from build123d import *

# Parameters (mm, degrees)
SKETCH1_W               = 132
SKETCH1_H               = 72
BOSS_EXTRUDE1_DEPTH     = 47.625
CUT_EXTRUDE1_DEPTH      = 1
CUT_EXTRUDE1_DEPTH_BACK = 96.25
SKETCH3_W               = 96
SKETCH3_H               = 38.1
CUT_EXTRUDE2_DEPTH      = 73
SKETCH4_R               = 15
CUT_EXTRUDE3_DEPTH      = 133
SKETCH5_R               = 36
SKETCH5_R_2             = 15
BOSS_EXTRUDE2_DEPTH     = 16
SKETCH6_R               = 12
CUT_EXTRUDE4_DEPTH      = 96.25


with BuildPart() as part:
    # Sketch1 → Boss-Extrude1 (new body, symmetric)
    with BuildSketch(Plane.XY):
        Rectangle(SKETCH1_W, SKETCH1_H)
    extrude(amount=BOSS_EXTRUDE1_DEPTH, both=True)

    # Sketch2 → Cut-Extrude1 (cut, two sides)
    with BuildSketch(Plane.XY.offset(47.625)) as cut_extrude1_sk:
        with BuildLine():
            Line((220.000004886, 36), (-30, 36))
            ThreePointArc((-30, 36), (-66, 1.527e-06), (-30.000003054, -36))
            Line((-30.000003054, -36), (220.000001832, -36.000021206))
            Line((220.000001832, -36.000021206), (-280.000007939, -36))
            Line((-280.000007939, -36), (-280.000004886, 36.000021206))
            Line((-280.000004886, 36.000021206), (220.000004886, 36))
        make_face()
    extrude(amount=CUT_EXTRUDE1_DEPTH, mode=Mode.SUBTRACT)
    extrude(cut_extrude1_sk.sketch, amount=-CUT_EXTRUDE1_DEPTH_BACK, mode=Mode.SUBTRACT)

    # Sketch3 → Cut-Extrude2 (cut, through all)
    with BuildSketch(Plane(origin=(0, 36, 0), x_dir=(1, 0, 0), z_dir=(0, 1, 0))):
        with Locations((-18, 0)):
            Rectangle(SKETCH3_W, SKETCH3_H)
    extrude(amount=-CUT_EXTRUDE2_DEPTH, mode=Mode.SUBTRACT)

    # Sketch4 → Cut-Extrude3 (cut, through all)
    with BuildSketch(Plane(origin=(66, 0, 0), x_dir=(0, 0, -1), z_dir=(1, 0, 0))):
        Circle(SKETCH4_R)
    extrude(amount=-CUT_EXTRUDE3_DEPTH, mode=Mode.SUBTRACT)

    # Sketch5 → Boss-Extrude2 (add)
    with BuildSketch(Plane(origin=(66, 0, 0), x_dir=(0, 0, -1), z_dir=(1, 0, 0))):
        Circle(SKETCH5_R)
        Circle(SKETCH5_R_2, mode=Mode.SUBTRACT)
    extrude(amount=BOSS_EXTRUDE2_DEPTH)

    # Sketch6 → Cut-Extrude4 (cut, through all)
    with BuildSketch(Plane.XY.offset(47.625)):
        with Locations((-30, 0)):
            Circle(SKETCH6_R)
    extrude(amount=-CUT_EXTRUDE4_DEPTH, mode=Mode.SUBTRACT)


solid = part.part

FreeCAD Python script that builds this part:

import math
import FreeCAD as App
import Part
import Sketcher
from FreeCAD import Vector
Q = App.Units.Quantity

doc = App.newDocument("Part")
body = doc.addObject("PartDesign::Body", "Body")

sketch1 = body.newObject("Sketcher::SketchObject", "Sketch")
sketch1.AttachmentSupport = (doc.getObject("XY_Plane"), [""])
sketch1.MapMode = "FlatFace"
sketch1.addGeometry(Part.LineSegment(Vector(-66, 36, 0), Vector(-66, -36, 0)), False)
sketch1.addGeometry(Part.LineSegment(Vector(-66, -36, 0), Vector(66, -36, 0)), False)
sketch1.addGeometry(Part.LineSegment(Vector(66, -36, 0), Vector(66, 36, 0)), False)
sketch1.addGeometry(Part.LineSegment(Vector(66, 36, 0), Vector(-66, 36, 0)), False)
sketch1.addConstraint(Sketcher.Constraint("Coincident", 0, 2, 1, 1))
sketch1.addConstraint(Sketcher.Constraint("Coincident", 1, 2, 2, 1))
sketch1.addConstraint(Sketcher.Constraint("Coincident", 2, 2, 3, 1))
sketch1.addConstraint(Sketcher.Constraint("Coincident", 3, 2, 0, 1))
sketch1.addConstraint(Sketcher.Constraint("Vertical", 0))
sketch1.addConstraint(Sketcher.Constraint("Horizontal", 1))
sketch1.addConstraint(Sketcher.Constraint("Vertical", 2))
sketch1.addConstraint(Sketcher.Constraint("Horizontal", 3))
sketch1.addConstraint(Sketcher.Constraint("Symmetric", 0, 2, 2, 2, -1, 1))
sketch1.addConstraint(Sketcher.Constraint("DistanceX", 1, 1, 1, 2, Q("132 mm")))
sketch1.addConstraint(Sketcher.Constraint("DistanceY", 0, 2, 0, 1, Q("72 mm")))
pad1 = body.newObject("PartDesign::Pad", "Pad")
pad1.Profile = sketch1
pad1.Length = 95.25
pad1.Midplane = True

sketch2 = body.newObject("Sketcher::SketchObject", "Sketch001")
sketch2.AttachmentSupport = (doc.getObject("XY_Plane"), [""])
sketch2.MapMode = "FlatFace"
sketch2.AttachmentOffset = App.Placement(Vector(0, 0, 47.625), App.Rotation())
sketch2.addGeometry(Part.LineSegment(Vector(-30, 36, 0), Vector(220.000005, 36, 0)), False)
sketch2.addGeometry(Part.LineSegment(Vector(220.000005, 36, 0), Vector(-280.000005, 36.000021, 0)), False)
sketch2.addGeometry(Part.LineSegment(Vector(-280.000005, 36.000021, 0), Vector(-280.000008, -36, 0)), False)
sketch2.addGeometry(Part.LineSegment(Vector(-280.000008, -36, 0), Vector(220.000002, -36.000021, 0)), False)
sketch2.addGeometry(Part.LineSegment(Vector(220.000002, -36.000021, 0), Vector(-30.000003, -36, 0)), False)
sketch2.addGeometry(Part.ArcOfCircle(Part.Circle(Vector(-30, 0, 0), Vector(0, 0, 1), 36), math.radians(90), math.radians(269.999995)), False)
sketch2.addConstraint(Sketcher.Constraint("Coincident", 0, 2, 1, 1))
sketch2.addConstraint(Sketcher.Constraint("Coincident", 1, 2, 2, 1))
sketch2.addConstraint(Sketcher.Constraint("Coincident", 2, 2, 3, 1))
sketch2.addConstraint(Sketcher.Constraint("Coincident", 3, 2, 4, 1))
sketch2.addConstraint(Sketcher.Constraint("Coincident", 4, 2, 5, 2))
sketch2.addConstraint(Sketcher.Constraint("Coincident", 5, 1, 0, 1))
sketch2.addConstraint(Sketcher.Constraint("Horizontal", 0))
sketch2.addConstraint(Sketcher.Constraint("PointOnObject", 5, 3, -1))
sketch2.addConstraint(Sketcher.Constraint("Radius", 5, Q("36 mm")))
sketch2.addConstraint(Sketcher.Constraint("DistanceX", 5, 3, -1, 1, Q("30 mm")))
sketch2.addConstraint(Sketcher.Constraint("DistanceY", 2, 2, -1, 1, Q("36 mm")))
sketch2.addConstraint(Sketcher.Constraint("DistanceX", -1, 1, 3, 2, Q("220.000002 mm")))
sketch2.addConstraint(Sketcher.Constraint("DistanceX", 5, 1, -1, 1, Q("30 mm")))
sketch2.addConstraint(Sketcher.Constraint("DistanceX", 1, 2, 4, 2, Q("250.000002 mm")))
sketch2.addConstraint(Sketcher.Constraint("Distance", 1, Q("500.00001 mm")))
sketch2.addConstraint(Sketcher.Constraint("Distance", 2, Q("72.000021 mm")))
sketch2.addConstraint(Sketcher.Constraint("Distance", 3, Q("500.00001 mm")))
sketch2.addConstraint(Sketcher.Constraint("DistanceX", 0, 1, 0, 2, Q("250.000005 mm")))
sketch2.addConstraint(Sketcher.Constraint("DistanceY", 3, 2, -1, 1, Q("36.000021 mm")))
pocket1 = body.newObject("PartDesign::Pocket", "Pocket")
pocket1.Profile = sketch2
pocket1.Type = "ThroughAll"
pocket1.Midplane = True

sketch3 = body.newObject("Sketcher::SketchObject", "Sketch002")
sketch3.AttachmentSupport = (doc.getObject("XZ_Plane"), [""])
sketch3.MapMode = "FlatFace"
sketch3.AttachmentOffset = App.Placement(Vector(0, 0, -36), App.Rotation())
sketch3.addGeometry(Part.LineSegment(Vector(-66, -19, 0), Vector(-66, 19, 0)), False)
sketch3.addGeometry(Part.LineSegment(Vector(-66, 19, 0), Vector(30, 19, 0)), False)
sketch3.addGeometry(Part.LineSegment(Vector(30, 19, 0), Vector(30, -19, 0)), False)
sketch3.addGeometry(Part.LineSegment(Vector(30, -19, 0), Vector(-66, -19, 0)), False)
sketch3.addConstraint(Sketcher.Constraint("Coincident", 0, 2, 1, 1))
sketch3.addConstraint(Sketcher.Constraint("Coincident", 1, 2, 2, 1))
sketch3.addConstraint(Sketcher.Constraint("Coincident", 2, 2, 3, 1))
sketch3.addConstraint(Sketcher.Constraint("Coincident", 3, 2, 0, 1))
sketch3.addConstraint(Sketcher.Constraint("Vertical", 0))
sketch3.addConstraint(Sketcher.Constraint("Horizontal", 1))
sketch3.addConstraint(Sketcher.Constraint("Vertical", 2))
sketch3.addConstraint(Sketcher.Constraint("Horizontal", 3))
sketch3.addConstraint(Sketcher.Constraint("DistanceX", 1, 1, 1, 2, Q("96 mm")))
sketch3.addConstraint(Sketcher.Constraint("DistanceY", 0, 1, 0, 2, Q("38.1 mm")))
sketch3.addConstraint(Sketcher.Constraint("DistanceX", 0, 2, -1, 1, Q("66 mm")))
sketch3.addConstraint(Sketcher.Constraint("DistanceY", -1, 1, 0, 2, Q("19.05 mm")))
pocket2 = body.newObject("PartDesign::Pocket", "Pocket001")
pocket2.Profile = sketch3
pocket2.Type = "ThroughAll"
pocket2.Reversed = True

sketch4 = body.newObject("Sketcher::SketchObject", "Sketch003")
sketch4.AttachmentSupport = (doc.getObject("YZ_Plane"), [""])
sketch4.MapMode = "FlatFace"
sketch4.AttachmentOffset = App.Placement(Vector(0, 0, 66), App.Rotation())
sketch4.addGeometry(Part.Circle(Vector(0, 0, 0), Vector(0, 0, 1), 15), False)
sketch4.addConstraint(Sketcher.Constraint("Coincident", 0, 3, -1, 1))
sketch4.addConstraint(Sketcher.Constraint("Diameter", 0, Q("30 mm")))
pocket3 = body.newObject("PartDesign::Pocket", "Pocket002")
pocket3.Profile = sketch4
pocket3.Type = "ThroughAll"

sketch5 = body.newObject("Sketcher::SketchObject", "Sketch004")
sketch5.AttachmentSupport = (doc.getObject("YZ_Plane"), [""])
sketch5.MapMode = "FlatFace"
sketch5.AttachmentOffset = App.Placement(Vector(0, 0, 66), App.Rotation())
sketch5.addGeometry(Part.Circle(Vector(0, 0, 0), Vector(0, 0, 1), 36), False)
sketch5.addGeometry(Part.Circle(Vector(0, 0, 0), Vector(0, 0, 1), 15), False)
sketch5.addConstraint(Sketcher.Constraint("Coincident", 0, 3, -1, 1))
sketch5.addConstraint(Sketcher.Constraint("Coincident", 1, 3, -1, 1))
sketch5.addConstraint(Sketcher.Constraint("Diameter", 0, Q("72 mm")))
sketch5.addConstraint(Sketcher.Constraint("Diameter", 1, Q("30 mm")))
pad2 = body.newObject("PartDesign::Pad", "Pad001")
pad2.Profile = sketch5
pad2.Length = 16

sketch6 = body.newObject("Sketcher::SketchObject", "Sketch005")
sketch6.AttachmentSupport = (doc.getObject("XY_Plane"), [""])
sketch6.MapMode = "FlatFace"
sketch6.AttachmentOffset = App.Placement(Vector(0, 0, 47.625), App.Rotation())
sketch6.addGeometry(Part.Circle(Vector(-30, 0, 0), Vector(0, 0, 1), 12), False)
sketch6.addConstraint(Sketcher.Constraint("PointOnObject", 0, 3, -1))
sketch6.addConstraint(Sketcher.Constraint("Diameter", 0, Q("24 mm")))
sketch6.addConstraint(Sketcher.Constraint("DistanceX", 0, 3, -1, 1, Q("30 mm")))
pocket4 = body.newObject("PartDesign::Pocket", "Pocket003")
pocket4.Profile = sketch6
pocket4.Type = "ThroughAll"

doc.recompute()
